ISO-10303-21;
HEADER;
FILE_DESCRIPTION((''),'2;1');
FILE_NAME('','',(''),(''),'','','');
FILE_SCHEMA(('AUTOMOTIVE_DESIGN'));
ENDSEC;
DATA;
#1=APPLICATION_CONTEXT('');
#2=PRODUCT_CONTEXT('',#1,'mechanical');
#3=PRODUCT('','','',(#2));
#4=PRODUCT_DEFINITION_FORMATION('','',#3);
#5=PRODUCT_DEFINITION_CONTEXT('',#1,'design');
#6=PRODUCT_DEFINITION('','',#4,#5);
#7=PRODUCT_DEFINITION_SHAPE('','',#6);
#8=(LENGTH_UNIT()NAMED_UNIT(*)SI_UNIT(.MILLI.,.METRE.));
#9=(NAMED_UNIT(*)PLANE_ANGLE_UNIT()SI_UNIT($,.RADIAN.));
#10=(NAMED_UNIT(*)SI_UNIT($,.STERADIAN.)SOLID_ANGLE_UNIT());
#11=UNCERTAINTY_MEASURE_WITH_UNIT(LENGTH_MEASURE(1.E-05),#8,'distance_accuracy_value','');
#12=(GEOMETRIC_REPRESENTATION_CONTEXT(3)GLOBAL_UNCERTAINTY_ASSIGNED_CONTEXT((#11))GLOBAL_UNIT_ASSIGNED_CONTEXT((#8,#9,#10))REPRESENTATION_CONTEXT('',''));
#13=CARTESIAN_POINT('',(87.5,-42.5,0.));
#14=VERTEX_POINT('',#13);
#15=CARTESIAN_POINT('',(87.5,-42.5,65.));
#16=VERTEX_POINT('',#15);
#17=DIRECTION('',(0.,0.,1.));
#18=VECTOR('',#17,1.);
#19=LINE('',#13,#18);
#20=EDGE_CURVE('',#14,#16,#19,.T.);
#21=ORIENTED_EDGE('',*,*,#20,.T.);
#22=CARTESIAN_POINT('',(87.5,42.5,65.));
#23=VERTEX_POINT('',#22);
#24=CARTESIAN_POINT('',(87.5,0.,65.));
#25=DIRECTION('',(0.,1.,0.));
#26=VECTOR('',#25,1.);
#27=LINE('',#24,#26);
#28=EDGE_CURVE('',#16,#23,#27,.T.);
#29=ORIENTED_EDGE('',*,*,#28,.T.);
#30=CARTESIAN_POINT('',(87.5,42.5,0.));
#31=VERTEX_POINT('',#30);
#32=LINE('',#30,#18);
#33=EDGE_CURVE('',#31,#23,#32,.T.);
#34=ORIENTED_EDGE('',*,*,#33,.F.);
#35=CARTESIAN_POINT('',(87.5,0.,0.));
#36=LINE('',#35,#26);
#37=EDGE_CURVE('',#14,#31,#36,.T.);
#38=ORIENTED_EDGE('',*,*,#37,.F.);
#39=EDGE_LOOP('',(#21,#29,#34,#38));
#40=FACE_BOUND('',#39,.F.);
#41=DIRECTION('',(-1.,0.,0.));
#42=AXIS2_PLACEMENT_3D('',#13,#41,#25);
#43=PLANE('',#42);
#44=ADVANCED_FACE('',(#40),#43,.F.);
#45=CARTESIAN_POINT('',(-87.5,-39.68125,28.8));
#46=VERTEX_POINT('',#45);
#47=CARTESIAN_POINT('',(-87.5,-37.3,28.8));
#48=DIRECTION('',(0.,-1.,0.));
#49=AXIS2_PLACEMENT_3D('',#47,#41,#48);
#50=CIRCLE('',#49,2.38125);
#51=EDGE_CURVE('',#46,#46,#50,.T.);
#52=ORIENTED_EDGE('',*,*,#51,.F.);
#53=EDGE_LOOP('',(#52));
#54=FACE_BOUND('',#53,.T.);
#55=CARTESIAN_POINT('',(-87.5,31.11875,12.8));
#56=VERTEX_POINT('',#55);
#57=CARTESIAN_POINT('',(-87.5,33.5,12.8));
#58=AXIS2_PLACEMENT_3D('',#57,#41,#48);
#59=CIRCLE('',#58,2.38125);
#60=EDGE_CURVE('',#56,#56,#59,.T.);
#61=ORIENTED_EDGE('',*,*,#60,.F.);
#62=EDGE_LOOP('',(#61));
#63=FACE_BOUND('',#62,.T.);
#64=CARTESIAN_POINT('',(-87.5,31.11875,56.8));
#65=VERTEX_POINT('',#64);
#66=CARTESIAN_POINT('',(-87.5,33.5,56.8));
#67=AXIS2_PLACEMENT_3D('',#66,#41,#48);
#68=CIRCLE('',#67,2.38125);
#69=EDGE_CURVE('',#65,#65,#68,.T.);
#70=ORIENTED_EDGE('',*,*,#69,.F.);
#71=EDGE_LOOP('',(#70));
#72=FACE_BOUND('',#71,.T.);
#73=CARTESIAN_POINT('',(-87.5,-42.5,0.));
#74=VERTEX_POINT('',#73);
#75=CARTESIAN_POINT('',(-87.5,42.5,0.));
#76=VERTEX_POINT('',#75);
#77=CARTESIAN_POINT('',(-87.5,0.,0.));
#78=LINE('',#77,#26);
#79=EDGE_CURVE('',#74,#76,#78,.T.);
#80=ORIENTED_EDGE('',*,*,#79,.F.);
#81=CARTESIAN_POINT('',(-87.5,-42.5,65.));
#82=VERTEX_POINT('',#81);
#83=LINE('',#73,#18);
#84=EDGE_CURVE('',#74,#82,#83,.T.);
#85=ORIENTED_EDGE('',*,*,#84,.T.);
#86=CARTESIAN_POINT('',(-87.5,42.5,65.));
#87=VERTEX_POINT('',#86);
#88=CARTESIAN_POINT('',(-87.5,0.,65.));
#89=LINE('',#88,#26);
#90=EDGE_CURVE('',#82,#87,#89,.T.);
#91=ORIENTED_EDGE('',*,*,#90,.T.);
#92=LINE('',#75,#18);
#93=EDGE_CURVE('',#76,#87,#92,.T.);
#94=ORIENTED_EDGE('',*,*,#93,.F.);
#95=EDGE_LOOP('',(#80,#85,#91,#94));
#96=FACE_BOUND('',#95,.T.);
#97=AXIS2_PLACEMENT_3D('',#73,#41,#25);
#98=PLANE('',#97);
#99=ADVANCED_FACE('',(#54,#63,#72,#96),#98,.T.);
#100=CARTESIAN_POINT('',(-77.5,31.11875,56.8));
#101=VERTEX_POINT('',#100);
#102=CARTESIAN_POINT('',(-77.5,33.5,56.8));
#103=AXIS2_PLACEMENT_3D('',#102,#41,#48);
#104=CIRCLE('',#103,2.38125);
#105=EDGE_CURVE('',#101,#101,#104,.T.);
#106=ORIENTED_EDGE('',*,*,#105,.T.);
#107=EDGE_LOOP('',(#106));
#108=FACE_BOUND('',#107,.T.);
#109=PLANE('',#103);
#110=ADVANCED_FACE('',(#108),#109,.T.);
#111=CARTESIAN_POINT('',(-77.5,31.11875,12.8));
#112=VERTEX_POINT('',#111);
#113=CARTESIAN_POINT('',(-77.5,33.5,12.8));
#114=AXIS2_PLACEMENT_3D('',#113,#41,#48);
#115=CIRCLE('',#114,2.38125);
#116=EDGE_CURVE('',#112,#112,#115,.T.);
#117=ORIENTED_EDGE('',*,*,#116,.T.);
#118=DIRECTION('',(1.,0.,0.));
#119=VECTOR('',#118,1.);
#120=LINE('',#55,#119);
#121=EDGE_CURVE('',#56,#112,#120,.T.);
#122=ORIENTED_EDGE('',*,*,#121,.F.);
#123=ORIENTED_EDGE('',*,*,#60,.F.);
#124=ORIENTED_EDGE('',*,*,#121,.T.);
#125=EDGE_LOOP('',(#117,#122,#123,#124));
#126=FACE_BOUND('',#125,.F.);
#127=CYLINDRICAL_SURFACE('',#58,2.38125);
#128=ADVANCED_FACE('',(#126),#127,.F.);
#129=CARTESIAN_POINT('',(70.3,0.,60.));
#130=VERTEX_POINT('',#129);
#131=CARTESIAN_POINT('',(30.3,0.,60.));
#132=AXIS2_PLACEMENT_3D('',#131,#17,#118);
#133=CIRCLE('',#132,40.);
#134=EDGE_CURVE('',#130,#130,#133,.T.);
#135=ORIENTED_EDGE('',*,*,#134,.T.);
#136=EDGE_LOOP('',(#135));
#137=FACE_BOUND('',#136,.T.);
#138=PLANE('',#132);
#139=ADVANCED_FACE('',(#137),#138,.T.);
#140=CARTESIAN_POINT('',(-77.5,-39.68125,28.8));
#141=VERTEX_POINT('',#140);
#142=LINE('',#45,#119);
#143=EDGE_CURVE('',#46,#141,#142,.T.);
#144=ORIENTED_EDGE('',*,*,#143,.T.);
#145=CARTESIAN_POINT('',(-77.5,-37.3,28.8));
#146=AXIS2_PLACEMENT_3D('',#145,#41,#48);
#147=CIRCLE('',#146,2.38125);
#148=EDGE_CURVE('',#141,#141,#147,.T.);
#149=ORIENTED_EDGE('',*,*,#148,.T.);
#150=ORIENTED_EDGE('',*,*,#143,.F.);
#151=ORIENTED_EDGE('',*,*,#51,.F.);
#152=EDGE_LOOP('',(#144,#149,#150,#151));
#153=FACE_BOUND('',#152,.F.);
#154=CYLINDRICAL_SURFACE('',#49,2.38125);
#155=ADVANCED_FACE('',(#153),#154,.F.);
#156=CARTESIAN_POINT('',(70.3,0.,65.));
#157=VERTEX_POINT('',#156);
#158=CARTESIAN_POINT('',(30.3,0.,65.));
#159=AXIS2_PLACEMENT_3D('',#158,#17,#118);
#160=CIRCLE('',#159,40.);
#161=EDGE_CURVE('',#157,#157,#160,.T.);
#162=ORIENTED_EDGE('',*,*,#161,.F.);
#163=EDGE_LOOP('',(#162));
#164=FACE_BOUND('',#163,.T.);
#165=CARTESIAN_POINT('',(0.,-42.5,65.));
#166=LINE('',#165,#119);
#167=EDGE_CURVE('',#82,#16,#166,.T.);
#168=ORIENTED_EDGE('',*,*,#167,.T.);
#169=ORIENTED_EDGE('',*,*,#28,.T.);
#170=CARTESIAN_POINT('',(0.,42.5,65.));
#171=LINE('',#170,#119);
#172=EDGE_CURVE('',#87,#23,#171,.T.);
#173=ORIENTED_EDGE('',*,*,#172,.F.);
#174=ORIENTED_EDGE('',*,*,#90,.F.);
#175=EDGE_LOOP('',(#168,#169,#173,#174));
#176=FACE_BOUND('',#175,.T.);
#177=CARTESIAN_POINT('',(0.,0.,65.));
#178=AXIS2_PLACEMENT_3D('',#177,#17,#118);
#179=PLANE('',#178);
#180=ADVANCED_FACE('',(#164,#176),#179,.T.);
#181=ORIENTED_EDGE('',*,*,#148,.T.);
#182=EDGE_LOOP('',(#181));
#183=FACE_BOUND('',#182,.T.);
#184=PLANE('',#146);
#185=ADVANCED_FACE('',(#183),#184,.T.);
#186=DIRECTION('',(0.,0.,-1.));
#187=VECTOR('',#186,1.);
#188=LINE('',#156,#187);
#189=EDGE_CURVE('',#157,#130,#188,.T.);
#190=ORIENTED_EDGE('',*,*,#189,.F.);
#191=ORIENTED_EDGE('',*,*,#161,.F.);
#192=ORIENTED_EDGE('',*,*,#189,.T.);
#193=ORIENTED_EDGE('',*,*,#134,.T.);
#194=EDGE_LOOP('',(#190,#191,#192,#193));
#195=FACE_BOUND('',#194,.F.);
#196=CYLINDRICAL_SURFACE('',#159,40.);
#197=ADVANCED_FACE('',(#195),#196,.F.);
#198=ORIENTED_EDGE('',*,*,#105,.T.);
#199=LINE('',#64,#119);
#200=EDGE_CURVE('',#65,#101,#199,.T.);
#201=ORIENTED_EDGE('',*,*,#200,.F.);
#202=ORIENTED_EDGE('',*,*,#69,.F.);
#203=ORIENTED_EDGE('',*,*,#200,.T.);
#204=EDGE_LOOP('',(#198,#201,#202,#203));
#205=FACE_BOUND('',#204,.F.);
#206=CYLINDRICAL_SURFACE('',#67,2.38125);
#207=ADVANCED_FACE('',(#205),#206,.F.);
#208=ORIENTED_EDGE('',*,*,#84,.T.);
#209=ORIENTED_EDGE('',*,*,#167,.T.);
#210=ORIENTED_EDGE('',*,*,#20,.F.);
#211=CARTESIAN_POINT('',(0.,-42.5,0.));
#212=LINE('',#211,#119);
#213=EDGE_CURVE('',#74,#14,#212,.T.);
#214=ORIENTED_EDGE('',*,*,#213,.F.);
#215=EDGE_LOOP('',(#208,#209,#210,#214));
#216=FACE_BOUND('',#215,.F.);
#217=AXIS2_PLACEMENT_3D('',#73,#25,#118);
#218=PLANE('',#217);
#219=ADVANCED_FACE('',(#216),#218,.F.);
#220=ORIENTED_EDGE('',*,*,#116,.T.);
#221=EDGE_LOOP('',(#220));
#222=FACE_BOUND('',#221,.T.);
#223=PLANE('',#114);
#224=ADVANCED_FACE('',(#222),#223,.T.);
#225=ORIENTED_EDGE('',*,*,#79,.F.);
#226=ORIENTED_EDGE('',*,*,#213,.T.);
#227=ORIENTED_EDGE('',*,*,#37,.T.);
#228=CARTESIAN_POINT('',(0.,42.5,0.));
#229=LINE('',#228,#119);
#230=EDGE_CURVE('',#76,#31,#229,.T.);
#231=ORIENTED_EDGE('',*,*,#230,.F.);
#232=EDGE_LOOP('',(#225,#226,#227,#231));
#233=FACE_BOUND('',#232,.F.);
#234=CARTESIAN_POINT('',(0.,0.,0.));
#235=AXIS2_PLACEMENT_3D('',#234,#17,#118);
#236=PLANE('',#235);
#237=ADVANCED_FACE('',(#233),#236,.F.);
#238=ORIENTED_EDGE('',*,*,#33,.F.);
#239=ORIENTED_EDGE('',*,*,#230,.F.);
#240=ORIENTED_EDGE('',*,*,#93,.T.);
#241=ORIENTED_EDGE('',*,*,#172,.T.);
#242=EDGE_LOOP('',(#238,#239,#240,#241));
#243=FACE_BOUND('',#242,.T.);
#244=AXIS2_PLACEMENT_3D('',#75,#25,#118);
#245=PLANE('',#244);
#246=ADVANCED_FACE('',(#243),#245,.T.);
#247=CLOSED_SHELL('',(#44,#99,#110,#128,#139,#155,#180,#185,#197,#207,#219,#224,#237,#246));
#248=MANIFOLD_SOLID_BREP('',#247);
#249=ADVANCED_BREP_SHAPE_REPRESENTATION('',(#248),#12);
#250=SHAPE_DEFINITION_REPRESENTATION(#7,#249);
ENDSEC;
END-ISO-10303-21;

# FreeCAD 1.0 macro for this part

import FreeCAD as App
import Part
import Sketcher


def add_polygon(sketch, points):
    """Adds a closed chain of lines whose ends are joined by coincident constraints."""
    first, n = sketch.GeometryCount, len(points)
    for a, b in zip(points, points[1:] + points[:1]):
        sketch.addGeometry(Part.LineSegment(App.Vector(*a, 0), App.Vector(*b, 0)), False)
    for i in range(n):
        sketch.addConstraint(Sketcher.Constraint("Coincident", first + i, 2, first + (i + 1) % n, 1))

doc = App.newDocument("Part")
body = doc.addObject("PartDesign::Body", "Body")

# Sketch on XY plane
sketch1 = doc.addObject("Sketcher::SketchObject", "Sketch")
body.addObject(sketch1)
sketch1.AttachmentSupport = (doc.XY_Plane, [""])
sketch1.MapMode = "FlatFace"
add_polygon(sketch1, [(-88, 42), (-88, -42), (88, -42), (88, 42)])  # lines 0-3
sketch1.addConstraint(Sketcher.Constraint("Vertical", 0))
sketch1.addConstraint(Sketcher.Constraint("Horizontal", 1))
sketch1.addConstraint(Sketcher.Constraint("Vertical", 2))
sketch1.addConstraint(Sketcher.Constraint("Horizontal", 3))
sketch1.addConstraint(Sketcher.Constraint("Symmetric", 0, 2, 2, 2, -1, 1))
sketch1.addConstraint(Sketcher.Constraint("DistanceX", 1, 1, 1, 2, 175.0))
sketch1.addConstraint(Sketcher.Constraint("DistanceY", 0, 2, 0, 1, 85.0))
pad1 = doc.addObject("PartDesign::Pad", "Pad")
body.addObject(pad1)
pad1.Profile = sketch1
pad1.Length = 65

# Sketch on XY plane
sketch2 = doc.addObject("Sketcher::SketchObject", "Sketch001")
body.addObject(sketch2)
sketch2.AttachmentSupport = (doc.XY_Plane, [""])
sketch2.MapMode = "FlatFace"
sketch2.AttachmentOffset = App.Placement(App.Vector(0, 0, 65), App.Rotation())
sketch2.addGeometry(Part.Circle(App.Vector(30, 0, 0), App.Vector(0, 0, 1), 40), False)
sketch2.addConstraint(Sketcher.Constraint("PointOnObject", 0, 3, -1))
sketch2.addConstraint(Sketcher.Constraint("Diameter", 0, 80.0))
sketch2.addConstraint(Sketcher.Constraint("DistanceX", -1, 1, 0, 3, 30.3))
pocket1 = doc.addObject("PartDesign::Pocket", "Pocket")
body.addObject(pocket1)
pocket1.Profile = sketch2
pocket1.Length = 5

# Sketch on YZ plane
sketch3 = doc.addObject("Sketcher::SketchObject", "Sketch002")
body.addObject(sketch3)
sketch3.AttachmentSupport = (doc.YZ_Plane, [""])
sketch3.MapMode = "FlatFace"
sketch3.AttachmentOffset = App.Placement(App.Vector(0, 0, -87.5), App.Rotation())
sketch3.addGeometry(Part.Circle(App.Vector(33.5, 12.8, 0), App.Vector(0, 0, 1), 2.4), False)
sketch3.addGeometry(Part.Circle(App.Vector(33.5, 56.8, 0), App.Vector(0, 0, 1), 2.4), False)
sketch3.addGeometry(Part.Circle(App.Vector(-37.3, 28.8, 0), App.Vector(0, 0, 1), 2.4), False)
sketch3.addConstraint(Sketcher.Constraint("Equal", 0, 1))
sketch3.addConstraint(Sketcher.Constraint("Equal", 1, 2))
sketch3.addConstraint(Sketcher.Constraint("Vertical", 0, 3, 1, 3))
sketch3.addConstraint(Sketcher.Constraint("DistanceY", 0, 3, 1, 3, 44.0))
sketch3.addConstraint(Sketcher.Constraint("DistanceY", 0, 3, 2, 3, 16.0))
sketch3.addConstraint(Sketcher.Constraint("Diameter", 0, 4.7625))
sketch3.addConstraint(Sketcher.Constraint("DistanceX", -1, 1, 0, 3, 33.5))
sketch3.addConstraint(Sketcher.Constraint("DistanceY", -1, 1, 0, 3, 12.8))
sketch3.addConstraint(Sketcher.Constraint("DistanceX", 2, 3, -1, 1, 37.3))
pocket2 = doc.addObject("PartDesign::Pocket", "Pocket001")
body.addObject(pocket2)
pocket2.Profile = sketch3
pocket2.Length = 10
pocket2.Reversed = True

doc.recompute()
